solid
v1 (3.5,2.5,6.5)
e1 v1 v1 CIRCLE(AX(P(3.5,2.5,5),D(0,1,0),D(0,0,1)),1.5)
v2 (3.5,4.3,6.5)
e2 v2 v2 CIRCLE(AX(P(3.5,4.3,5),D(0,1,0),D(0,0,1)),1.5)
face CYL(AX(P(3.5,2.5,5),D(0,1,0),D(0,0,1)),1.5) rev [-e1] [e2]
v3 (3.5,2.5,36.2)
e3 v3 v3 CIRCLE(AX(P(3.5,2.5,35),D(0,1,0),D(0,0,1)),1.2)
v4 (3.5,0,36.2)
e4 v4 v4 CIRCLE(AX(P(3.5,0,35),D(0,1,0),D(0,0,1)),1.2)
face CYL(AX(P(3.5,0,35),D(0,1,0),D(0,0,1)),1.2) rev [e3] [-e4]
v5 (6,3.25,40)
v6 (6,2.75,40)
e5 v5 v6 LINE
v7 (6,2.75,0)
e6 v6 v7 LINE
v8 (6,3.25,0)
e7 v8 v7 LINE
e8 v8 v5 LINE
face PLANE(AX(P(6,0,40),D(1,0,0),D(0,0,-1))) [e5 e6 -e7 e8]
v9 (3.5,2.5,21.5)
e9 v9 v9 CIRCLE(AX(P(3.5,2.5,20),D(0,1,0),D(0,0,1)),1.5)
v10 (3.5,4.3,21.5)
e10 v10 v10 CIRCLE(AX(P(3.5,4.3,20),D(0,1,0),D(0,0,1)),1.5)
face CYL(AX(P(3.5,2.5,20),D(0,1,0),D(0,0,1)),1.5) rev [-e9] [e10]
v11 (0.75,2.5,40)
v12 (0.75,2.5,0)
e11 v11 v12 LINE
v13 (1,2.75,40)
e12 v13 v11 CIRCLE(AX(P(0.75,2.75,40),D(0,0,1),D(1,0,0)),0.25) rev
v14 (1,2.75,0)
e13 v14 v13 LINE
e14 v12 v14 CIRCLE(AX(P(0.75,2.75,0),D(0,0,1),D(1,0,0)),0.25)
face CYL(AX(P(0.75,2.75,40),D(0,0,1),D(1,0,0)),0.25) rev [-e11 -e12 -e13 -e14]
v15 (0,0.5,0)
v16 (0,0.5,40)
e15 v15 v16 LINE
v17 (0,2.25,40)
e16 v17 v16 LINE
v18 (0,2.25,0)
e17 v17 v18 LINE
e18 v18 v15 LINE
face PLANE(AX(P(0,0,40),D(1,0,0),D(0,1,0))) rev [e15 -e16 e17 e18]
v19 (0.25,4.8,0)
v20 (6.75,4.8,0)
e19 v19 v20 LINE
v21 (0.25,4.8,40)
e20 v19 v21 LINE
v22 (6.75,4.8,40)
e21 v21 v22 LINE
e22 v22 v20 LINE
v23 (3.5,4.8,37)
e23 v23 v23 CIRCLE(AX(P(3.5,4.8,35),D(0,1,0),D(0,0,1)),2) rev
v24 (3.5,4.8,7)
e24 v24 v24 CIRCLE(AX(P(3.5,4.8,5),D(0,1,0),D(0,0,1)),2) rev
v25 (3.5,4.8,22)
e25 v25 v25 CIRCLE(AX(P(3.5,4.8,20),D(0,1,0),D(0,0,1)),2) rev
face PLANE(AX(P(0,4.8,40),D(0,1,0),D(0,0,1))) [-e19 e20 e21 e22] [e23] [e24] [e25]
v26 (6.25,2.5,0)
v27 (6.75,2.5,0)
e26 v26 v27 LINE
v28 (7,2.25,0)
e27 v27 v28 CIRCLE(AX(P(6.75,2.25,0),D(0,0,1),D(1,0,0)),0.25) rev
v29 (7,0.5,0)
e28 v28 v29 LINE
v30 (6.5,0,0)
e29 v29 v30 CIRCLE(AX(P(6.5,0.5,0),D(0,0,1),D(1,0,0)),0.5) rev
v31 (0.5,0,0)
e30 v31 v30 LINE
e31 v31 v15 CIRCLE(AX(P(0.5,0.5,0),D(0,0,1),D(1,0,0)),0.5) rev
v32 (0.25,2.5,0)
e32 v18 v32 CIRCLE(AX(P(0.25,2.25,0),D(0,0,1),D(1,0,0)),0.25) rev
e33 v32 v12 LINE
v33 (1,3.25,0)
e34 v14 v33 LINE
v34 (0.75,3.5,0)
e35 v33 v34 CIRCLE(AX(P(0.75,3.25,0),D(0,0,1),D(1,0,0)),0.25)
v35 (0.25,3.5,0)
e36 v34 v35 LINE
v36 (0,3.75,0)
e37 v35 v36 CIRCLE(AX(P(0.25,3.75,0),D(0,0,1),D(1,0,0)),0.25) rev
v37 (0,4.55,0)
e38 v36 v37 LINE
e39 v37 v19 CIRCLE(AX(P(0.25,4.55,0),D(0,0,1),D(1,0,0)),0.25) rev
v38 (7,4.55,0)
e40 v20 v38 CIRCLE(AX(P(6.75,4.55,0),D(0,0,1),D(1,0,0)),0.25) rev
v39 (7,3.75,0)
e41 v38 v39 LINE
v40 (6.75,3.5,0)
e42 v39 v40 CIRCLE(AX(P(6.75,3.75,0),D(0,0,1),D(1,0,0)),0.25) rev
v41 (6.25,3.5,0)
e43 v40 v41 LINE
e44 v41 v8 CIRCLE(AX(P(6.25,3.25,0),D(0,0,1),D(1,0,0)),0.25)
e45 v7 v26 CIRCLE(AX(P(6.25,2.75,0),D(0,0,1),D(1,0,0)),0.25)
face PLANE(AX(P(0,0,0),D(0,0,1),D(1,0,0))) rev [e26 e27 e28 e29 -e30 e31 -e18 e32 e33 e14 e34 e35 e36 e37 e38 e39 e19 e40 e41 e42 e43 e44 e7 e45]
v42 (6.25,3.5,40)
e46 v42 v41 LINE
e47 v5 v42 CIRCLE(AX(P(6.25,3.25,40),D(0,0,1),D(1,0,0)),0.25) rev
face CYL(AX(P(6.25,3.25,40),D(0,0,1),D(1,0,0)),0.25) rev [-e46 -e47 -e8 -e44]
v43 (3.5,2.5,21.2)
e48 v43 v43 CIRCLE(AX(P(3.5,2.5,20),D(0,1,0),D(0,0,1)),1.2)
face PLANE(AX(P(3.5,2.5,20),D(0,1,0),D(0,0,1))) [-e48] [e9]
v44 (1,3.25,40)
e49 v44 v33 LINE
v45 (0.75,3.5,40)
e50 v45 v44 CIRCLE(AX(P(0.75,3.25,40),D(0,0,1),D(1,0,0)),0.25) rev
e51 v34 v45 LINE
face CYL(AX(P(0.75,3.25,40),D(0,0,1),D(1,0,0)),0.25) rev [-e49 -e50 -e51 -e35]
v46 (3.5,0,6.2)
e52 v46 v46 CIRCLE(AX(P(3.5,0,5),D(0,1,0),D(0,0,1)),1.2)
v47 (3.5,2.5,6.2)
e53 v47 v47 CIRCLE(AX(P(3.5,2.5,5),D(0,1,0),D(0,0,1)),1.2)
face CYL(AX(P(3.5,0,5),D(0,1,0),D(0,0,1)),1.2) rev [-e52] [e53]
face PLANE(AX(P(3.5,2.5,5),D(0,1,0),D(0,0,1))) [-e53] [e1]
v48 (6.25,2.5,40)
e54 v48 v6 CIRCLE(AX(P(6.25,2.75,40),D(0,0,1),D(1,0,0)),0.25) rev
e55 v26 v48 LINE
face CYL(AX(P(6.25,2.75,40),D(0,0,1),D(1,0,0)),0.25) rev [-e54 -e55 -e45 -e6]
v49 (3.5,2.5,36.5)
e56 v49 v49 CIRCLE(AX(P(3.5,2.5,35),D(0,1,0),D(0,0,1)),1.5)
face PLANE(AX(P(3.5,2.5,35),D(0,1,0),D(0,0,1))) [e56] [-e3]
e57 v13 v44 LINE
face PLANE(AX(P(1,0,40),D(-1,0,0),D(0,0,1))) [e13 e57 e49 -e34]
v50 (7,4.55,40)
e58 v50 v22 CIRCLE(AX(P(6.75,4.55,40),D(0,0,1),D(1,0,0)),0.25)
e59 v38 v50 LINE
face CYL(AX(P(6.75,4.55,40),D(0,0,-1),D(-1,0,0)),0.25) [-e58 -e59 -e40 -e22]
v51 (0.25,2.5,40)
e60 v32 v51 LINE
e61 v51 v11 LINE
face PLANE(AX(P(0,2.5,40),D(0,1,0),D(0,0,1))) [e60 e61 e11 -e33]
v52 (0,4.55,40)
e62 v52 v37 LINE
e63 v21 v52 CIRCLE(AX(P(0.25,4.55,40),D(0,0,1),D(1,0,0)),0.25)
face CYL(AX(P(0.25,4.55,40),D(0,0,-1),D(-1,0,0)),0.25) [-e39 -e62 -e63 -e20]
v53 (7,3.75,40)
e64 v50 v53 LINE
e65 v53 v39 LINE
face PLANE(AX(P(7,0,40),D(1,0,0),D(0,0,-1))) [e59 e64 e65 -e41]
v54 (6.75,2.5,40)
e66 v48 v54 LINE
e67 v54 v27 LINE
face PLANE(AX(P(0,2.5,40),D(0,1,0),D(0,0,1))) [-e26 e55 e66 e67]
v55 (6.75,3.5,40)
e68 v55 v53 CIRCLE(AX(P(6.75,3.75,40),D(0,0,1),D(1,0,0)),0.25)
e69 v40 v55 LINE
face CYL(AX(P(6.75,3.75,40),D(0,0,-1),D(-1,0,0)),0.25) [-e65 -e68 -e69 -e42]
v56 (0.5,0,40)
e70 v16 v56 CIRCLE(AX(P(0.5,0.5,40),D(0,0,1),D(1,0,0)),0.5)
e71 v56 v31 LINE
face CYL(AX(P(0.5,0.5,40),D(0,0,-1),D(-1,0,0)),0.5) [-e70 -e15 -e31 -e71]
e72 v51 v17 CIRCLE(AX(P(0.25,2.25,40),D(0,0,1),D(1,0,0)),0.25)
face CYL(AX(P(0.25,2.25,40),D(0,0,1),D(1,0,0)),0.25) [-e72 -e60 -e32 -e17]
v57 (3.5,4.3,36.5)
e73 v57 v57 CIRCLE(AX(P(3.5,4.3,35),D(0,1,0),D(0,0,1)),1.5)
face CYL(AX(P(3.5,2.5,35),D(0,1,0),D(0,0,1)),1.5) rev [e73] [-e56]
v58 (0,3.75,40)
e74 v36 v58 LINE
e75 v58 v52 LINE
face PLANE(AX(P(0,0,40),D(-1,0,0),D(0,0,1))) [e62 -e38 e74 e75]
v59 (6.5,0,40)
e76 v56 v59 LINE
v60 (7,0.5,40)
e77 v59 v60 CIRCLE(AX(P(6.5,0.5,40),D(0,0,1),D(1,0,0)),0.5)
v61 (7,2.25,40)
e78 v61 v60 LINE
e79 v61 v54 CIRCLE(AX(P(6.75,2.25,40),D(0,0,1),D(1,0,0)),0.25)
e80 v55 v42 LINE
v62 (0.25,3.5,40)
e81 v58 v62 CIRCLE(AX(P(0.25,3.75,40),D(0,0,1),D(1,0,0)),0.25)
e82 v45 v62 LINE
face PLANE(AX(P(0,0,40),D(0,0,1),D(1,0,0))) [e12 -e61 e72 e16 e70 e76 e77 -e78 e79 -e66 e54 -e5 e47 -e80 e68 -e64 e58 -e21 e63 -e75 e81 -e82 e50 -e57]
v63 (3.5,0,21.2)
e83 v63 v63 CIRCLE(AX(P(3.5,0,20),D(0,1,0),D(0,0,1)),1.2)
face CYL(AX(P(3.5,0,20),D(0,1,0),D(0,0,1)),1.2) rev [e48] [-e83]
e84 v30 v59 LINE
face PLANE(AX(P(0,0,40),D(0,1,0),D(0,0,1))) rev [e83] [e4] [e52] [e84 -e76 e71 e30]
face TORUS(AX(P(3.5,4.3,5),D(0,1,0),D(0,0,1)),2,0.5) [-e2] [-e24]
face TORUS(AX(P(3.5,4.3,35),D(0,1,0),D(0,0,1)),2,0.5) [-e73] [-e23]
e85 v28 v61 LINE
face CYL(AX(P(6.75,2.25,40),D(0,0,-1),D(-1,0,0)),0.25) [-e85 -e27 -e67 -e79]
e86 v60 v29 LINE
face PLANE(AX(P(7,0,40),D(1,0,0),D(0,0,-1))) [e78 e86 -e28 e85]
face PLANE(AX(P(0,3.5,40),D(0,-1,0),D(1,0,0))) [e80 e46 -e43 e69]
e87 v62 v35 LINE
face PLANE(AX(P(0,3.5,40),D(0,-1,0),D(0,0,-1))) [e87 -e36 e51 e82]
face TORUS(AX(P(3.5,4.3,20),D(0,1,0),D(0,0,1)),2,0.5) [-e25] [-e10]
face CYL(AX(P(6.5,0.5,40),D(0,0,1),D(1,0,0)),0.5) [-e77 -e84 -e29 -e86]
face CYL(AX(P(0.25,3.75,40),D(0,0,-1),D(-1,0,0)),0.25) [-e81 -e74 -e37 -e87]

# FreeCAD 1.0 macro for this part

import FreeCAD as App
import Part
import Sketcher

V = App.Vector


def edges_at(feature, points):
    """Names of the edges that pass closest to the given points."""
    edges = feature.Shape.Edges
    near = lambda p: min(range(len(edges)), key=lambda i: edges[i].distToShape(Part.Vertex(*p))[0])
    return sorted({f"Edge{near(p) + 1}" for p in points})

doc = App.newDocument("Part")
body = doc.addObject("PartDesign::Body", "Body")

# Sketch on XY plane
sketch1 = body.newObject("Sketcher::SketchObject", "Sketch")
sketch1.AttachmentSupport = (doc.getObject("XY_Plane"), [""])
sketch1.MapMode = "FlatFace"
sketch1.addGeometry([
    Part.LineSegment(V(7, 0, 0), V(7, 2.5, 0)),  # 0
    Part.LineSegment(V(7, 2.5, 0), V(6, 2.5, 0)),  # 1
    Part.LineSegment(V(6, 2.5, 0), V(6, 3.5, 0)),  # 2
    Part.LineSegment(V(6, 3.5, 0), V(7, 3.5, 0)),  # 3
    Part.LineSegment(V(7, 3.5, 0), V(7, 4.8, 0)),  # 4
    Part.LineSegment(V(7, 4.8, 0), V(0, 4.8, 0)),  # 5
    Part.LineSegment(V(0, 4.8, 0), V(0, 3.5, 0)),  # 6
    Part.LineSegment(V(0, 3.5, 0), V(1, 3.5, 0)),  # 7
    Part.LineSegment(V(1, 3.5, 0), V(1, 2.5, 0)),  # 8
    Part.LineSegment(V(1, 2.5, 0), V(0, 2.5, 0)),  # 9
    Part.LineSegment(V(0, 2.5, 0), V(0, 0, 0)),  # 10
    Part.LineSegment(V(0, 0, 0), V(7, 0, 0)),  # 11
], False)
sketch1.addConstraint([
    Sketcher.Constraint("Coincident", 0, 2, 1, 1),
    Sketcher.Constraint("Coincident", 1, 2, 2, 1),
    Sketcher.Constraint("Coincident", 2, 2, 3, 1),
    Sketcher.Constraint("Coincident", 3, 2, 4, 1),
    Sketcher.Constraint("Coincident", 4, 2, 5, 1),
    Sketcher.Constraint("Coincident", 5, 2, 6, 1),
    Sketcher.Constraint("Coincident", 6, 2, 7, 1),
    Sketcher.Constraint("Coincident", 7, 2, 8, 1),
    Sketcher.Constraint("Coincident", 8, 2, 9, 1),
    Sketcher.Constraint("Coincident", 9, 2, 10, 1),
    Sketcher.Constraint("Coincident", 10, 2, 11, 1),
    Sketcher.Constraint("Coincident", 11, 2, 0, 1),
    Sketcher.Constraint("Vertical", 0),
    Sketcher.Constraint("Horizontal", 1),
    Sketcher.Constraint("Vertical", 2),
    Sketcher.Constraint("Horizontal", 3),
    Sketcher.Constraint("Vertical", 4),
    Sketcher.Constraint("Horizontal", 5),
    Sketcher.Constraint("Vertical", 6),
    Sketcher.Constraint("Horizontal", 7),
    Sketcher.Constraint("Vertical", 8),
    Sketcher.Constraint("Horizontal", 9),
    Sketcher.Constraint("Vertical", 10),
    Sketcher.Constraint("Horizontal", 11),
    Sketcher.Constraint("Coincident", 10, 2, -1, 1),
    Sketcher.Constraint("PointOnObject", 5, 2, -2),
    Sketcher.Constraint("Horizontal", 3, 2, 6, 2),
    Sketcher.Constraint("Horizontal", 1, 2, 8, 2),
    Sketcher.Constraint("Vertical", 0, 2, 3, 2),
    Sketcher.Constraint("Equal", 3, 7),
    Sketcher.Constraint("Equal", 9, 2),
    Sketcher.Constraint("DistanceX", 1, 2, 1, 1, 1.0),
    Sketcher.Constraint("DistanceX", 5, 2, 5, 1, 7.0),
    Sketcher.Constraint("DistanceY", 0, 1, 0, 2, 2.5),
    Sketcher.Constraint("DistanceY", 4, 1, 4, 2, 1.3),
])
pad1 = body.newObject("PartDesign::Pad", "Pad")
pad1.Profile = sketch1
pad1.Length = 40
doc.recompute()

fillet = body.newObject("PartDesign::Fillet", "Fillet")
fillet.Base = (pad1, edges_at(pad1, [
    (0, 2.5, 20),
    (1, 2.5, 20),
    (1, 3.5, 20),
    (0, 3.5, 20),
    (0, 4.8, 20),
    (7, 4.8, 20),
    (7, 3.5, 20),
    (6, 3.5, 20),
    (6, 2.5, 20),
    (7, 2.5, 20),
]))
fillet.Radius = 0.25
doc.recompute()

fillet2 = body.newObject("PartDesign::Fillet", "Fillet001")
fillet2.Base = (fillet, edges_at(fillet, [(7, 0, 20), (0, 0, 20)]))
fillet2.Radius = 0.5

# Sketch on XZ plane
sketch2 = body.newObject("Sketcher::SketchObject", "Sketch001")
sketch2.AttachmentSupport = (doc.getObject("XZ_Plane"), [""])
sketch2.MapMode = "FlatFace"
sketch2.AttachmentOffset = App.Placement(V(0, 0, -4.8), App.Rotation())
sketch2.addGeometry(Part.Circle(V(3.5, 5, 0), V(0, 0, 1), 1.5), False)
sketch2.addConstraint([
    Sketcher.Constraint("Diameter", 0, 3.0),
    Sketcher.Constraint("DistanceY", -1, 1, 0, 3, 5.0),
    Sketcher.Constraint("DistanceX", -1, 1, 0, 3, 3.5),
])
pocket1 = body.newObject("PartDesign::Pocket", "Pocket")
pocket1.Profile = sketch2
pocket1.Length = 2.3
pocket1.Reversed = True

# Sketch on XZ plane
sketch3 = body.newObject("Sketcher::SketchObject", "Sketch002")
sketch3.AttachmentSupport = (doc.getObject("XZ_Plane"), [""])
sketch3.MapMode = "FlatFace"
sketch3.AttachmentOffset = App.Placement(V(0, 0, -2.5), App.Rotation())
sketch3.addGeometry(Part.Circle(V(3.5, 5, 0), V(0, 0, 1), 1.2), False)
sketch3.addConstraint([
    Sketcher.Constraint("Diameter", 0, 2.4),
    Sketcher.Constraint("DistanceY", -1, 1, 0, 3, 5.0),
    Sketcher.Constraint("DistanceX", -1, 1, 0, 3, 3.5),
])
pocket2 = body.newObject("PartDesign::Pocket", "Pocket001")
pocket2.Profile = sketch3
pocket2.Type = "ThroughAll"
pocket2.Reversed = True
doc.recompute()

fillet3 = body.newObject("PartDesign::Fillet", "Fillet002")
fillet3.Base = (pocket2, edges_at(pocket2, [(3.5, 4.8, 3.5)]))
fillet3.Radius = 0.5
doc.recompute()

linearpattern = body.newObject("PartDesign::LinearPattern", "LinearPattern")
linearpattern.Originals = [pocket1, pocket2]
linearpattern.Direction = (doc.getObject("Z_Axis"), [""])
linearpattern.Mode = "offset"
linearpattern.Offset = 15
linearpattern.Occurrences = 3
body.Tip = linearpattern
doc.recompute()

fillet4 = body.newObject("PartDesign::Fillet", "Fillet003")
fillet4.Base = (linearpattern, edges_at(linearpattern, [(3.5, 4.8, 18.5), (3.5, 4.8, 33.5)]))
fillet4.Radius = 0.5

doc.recompute()
